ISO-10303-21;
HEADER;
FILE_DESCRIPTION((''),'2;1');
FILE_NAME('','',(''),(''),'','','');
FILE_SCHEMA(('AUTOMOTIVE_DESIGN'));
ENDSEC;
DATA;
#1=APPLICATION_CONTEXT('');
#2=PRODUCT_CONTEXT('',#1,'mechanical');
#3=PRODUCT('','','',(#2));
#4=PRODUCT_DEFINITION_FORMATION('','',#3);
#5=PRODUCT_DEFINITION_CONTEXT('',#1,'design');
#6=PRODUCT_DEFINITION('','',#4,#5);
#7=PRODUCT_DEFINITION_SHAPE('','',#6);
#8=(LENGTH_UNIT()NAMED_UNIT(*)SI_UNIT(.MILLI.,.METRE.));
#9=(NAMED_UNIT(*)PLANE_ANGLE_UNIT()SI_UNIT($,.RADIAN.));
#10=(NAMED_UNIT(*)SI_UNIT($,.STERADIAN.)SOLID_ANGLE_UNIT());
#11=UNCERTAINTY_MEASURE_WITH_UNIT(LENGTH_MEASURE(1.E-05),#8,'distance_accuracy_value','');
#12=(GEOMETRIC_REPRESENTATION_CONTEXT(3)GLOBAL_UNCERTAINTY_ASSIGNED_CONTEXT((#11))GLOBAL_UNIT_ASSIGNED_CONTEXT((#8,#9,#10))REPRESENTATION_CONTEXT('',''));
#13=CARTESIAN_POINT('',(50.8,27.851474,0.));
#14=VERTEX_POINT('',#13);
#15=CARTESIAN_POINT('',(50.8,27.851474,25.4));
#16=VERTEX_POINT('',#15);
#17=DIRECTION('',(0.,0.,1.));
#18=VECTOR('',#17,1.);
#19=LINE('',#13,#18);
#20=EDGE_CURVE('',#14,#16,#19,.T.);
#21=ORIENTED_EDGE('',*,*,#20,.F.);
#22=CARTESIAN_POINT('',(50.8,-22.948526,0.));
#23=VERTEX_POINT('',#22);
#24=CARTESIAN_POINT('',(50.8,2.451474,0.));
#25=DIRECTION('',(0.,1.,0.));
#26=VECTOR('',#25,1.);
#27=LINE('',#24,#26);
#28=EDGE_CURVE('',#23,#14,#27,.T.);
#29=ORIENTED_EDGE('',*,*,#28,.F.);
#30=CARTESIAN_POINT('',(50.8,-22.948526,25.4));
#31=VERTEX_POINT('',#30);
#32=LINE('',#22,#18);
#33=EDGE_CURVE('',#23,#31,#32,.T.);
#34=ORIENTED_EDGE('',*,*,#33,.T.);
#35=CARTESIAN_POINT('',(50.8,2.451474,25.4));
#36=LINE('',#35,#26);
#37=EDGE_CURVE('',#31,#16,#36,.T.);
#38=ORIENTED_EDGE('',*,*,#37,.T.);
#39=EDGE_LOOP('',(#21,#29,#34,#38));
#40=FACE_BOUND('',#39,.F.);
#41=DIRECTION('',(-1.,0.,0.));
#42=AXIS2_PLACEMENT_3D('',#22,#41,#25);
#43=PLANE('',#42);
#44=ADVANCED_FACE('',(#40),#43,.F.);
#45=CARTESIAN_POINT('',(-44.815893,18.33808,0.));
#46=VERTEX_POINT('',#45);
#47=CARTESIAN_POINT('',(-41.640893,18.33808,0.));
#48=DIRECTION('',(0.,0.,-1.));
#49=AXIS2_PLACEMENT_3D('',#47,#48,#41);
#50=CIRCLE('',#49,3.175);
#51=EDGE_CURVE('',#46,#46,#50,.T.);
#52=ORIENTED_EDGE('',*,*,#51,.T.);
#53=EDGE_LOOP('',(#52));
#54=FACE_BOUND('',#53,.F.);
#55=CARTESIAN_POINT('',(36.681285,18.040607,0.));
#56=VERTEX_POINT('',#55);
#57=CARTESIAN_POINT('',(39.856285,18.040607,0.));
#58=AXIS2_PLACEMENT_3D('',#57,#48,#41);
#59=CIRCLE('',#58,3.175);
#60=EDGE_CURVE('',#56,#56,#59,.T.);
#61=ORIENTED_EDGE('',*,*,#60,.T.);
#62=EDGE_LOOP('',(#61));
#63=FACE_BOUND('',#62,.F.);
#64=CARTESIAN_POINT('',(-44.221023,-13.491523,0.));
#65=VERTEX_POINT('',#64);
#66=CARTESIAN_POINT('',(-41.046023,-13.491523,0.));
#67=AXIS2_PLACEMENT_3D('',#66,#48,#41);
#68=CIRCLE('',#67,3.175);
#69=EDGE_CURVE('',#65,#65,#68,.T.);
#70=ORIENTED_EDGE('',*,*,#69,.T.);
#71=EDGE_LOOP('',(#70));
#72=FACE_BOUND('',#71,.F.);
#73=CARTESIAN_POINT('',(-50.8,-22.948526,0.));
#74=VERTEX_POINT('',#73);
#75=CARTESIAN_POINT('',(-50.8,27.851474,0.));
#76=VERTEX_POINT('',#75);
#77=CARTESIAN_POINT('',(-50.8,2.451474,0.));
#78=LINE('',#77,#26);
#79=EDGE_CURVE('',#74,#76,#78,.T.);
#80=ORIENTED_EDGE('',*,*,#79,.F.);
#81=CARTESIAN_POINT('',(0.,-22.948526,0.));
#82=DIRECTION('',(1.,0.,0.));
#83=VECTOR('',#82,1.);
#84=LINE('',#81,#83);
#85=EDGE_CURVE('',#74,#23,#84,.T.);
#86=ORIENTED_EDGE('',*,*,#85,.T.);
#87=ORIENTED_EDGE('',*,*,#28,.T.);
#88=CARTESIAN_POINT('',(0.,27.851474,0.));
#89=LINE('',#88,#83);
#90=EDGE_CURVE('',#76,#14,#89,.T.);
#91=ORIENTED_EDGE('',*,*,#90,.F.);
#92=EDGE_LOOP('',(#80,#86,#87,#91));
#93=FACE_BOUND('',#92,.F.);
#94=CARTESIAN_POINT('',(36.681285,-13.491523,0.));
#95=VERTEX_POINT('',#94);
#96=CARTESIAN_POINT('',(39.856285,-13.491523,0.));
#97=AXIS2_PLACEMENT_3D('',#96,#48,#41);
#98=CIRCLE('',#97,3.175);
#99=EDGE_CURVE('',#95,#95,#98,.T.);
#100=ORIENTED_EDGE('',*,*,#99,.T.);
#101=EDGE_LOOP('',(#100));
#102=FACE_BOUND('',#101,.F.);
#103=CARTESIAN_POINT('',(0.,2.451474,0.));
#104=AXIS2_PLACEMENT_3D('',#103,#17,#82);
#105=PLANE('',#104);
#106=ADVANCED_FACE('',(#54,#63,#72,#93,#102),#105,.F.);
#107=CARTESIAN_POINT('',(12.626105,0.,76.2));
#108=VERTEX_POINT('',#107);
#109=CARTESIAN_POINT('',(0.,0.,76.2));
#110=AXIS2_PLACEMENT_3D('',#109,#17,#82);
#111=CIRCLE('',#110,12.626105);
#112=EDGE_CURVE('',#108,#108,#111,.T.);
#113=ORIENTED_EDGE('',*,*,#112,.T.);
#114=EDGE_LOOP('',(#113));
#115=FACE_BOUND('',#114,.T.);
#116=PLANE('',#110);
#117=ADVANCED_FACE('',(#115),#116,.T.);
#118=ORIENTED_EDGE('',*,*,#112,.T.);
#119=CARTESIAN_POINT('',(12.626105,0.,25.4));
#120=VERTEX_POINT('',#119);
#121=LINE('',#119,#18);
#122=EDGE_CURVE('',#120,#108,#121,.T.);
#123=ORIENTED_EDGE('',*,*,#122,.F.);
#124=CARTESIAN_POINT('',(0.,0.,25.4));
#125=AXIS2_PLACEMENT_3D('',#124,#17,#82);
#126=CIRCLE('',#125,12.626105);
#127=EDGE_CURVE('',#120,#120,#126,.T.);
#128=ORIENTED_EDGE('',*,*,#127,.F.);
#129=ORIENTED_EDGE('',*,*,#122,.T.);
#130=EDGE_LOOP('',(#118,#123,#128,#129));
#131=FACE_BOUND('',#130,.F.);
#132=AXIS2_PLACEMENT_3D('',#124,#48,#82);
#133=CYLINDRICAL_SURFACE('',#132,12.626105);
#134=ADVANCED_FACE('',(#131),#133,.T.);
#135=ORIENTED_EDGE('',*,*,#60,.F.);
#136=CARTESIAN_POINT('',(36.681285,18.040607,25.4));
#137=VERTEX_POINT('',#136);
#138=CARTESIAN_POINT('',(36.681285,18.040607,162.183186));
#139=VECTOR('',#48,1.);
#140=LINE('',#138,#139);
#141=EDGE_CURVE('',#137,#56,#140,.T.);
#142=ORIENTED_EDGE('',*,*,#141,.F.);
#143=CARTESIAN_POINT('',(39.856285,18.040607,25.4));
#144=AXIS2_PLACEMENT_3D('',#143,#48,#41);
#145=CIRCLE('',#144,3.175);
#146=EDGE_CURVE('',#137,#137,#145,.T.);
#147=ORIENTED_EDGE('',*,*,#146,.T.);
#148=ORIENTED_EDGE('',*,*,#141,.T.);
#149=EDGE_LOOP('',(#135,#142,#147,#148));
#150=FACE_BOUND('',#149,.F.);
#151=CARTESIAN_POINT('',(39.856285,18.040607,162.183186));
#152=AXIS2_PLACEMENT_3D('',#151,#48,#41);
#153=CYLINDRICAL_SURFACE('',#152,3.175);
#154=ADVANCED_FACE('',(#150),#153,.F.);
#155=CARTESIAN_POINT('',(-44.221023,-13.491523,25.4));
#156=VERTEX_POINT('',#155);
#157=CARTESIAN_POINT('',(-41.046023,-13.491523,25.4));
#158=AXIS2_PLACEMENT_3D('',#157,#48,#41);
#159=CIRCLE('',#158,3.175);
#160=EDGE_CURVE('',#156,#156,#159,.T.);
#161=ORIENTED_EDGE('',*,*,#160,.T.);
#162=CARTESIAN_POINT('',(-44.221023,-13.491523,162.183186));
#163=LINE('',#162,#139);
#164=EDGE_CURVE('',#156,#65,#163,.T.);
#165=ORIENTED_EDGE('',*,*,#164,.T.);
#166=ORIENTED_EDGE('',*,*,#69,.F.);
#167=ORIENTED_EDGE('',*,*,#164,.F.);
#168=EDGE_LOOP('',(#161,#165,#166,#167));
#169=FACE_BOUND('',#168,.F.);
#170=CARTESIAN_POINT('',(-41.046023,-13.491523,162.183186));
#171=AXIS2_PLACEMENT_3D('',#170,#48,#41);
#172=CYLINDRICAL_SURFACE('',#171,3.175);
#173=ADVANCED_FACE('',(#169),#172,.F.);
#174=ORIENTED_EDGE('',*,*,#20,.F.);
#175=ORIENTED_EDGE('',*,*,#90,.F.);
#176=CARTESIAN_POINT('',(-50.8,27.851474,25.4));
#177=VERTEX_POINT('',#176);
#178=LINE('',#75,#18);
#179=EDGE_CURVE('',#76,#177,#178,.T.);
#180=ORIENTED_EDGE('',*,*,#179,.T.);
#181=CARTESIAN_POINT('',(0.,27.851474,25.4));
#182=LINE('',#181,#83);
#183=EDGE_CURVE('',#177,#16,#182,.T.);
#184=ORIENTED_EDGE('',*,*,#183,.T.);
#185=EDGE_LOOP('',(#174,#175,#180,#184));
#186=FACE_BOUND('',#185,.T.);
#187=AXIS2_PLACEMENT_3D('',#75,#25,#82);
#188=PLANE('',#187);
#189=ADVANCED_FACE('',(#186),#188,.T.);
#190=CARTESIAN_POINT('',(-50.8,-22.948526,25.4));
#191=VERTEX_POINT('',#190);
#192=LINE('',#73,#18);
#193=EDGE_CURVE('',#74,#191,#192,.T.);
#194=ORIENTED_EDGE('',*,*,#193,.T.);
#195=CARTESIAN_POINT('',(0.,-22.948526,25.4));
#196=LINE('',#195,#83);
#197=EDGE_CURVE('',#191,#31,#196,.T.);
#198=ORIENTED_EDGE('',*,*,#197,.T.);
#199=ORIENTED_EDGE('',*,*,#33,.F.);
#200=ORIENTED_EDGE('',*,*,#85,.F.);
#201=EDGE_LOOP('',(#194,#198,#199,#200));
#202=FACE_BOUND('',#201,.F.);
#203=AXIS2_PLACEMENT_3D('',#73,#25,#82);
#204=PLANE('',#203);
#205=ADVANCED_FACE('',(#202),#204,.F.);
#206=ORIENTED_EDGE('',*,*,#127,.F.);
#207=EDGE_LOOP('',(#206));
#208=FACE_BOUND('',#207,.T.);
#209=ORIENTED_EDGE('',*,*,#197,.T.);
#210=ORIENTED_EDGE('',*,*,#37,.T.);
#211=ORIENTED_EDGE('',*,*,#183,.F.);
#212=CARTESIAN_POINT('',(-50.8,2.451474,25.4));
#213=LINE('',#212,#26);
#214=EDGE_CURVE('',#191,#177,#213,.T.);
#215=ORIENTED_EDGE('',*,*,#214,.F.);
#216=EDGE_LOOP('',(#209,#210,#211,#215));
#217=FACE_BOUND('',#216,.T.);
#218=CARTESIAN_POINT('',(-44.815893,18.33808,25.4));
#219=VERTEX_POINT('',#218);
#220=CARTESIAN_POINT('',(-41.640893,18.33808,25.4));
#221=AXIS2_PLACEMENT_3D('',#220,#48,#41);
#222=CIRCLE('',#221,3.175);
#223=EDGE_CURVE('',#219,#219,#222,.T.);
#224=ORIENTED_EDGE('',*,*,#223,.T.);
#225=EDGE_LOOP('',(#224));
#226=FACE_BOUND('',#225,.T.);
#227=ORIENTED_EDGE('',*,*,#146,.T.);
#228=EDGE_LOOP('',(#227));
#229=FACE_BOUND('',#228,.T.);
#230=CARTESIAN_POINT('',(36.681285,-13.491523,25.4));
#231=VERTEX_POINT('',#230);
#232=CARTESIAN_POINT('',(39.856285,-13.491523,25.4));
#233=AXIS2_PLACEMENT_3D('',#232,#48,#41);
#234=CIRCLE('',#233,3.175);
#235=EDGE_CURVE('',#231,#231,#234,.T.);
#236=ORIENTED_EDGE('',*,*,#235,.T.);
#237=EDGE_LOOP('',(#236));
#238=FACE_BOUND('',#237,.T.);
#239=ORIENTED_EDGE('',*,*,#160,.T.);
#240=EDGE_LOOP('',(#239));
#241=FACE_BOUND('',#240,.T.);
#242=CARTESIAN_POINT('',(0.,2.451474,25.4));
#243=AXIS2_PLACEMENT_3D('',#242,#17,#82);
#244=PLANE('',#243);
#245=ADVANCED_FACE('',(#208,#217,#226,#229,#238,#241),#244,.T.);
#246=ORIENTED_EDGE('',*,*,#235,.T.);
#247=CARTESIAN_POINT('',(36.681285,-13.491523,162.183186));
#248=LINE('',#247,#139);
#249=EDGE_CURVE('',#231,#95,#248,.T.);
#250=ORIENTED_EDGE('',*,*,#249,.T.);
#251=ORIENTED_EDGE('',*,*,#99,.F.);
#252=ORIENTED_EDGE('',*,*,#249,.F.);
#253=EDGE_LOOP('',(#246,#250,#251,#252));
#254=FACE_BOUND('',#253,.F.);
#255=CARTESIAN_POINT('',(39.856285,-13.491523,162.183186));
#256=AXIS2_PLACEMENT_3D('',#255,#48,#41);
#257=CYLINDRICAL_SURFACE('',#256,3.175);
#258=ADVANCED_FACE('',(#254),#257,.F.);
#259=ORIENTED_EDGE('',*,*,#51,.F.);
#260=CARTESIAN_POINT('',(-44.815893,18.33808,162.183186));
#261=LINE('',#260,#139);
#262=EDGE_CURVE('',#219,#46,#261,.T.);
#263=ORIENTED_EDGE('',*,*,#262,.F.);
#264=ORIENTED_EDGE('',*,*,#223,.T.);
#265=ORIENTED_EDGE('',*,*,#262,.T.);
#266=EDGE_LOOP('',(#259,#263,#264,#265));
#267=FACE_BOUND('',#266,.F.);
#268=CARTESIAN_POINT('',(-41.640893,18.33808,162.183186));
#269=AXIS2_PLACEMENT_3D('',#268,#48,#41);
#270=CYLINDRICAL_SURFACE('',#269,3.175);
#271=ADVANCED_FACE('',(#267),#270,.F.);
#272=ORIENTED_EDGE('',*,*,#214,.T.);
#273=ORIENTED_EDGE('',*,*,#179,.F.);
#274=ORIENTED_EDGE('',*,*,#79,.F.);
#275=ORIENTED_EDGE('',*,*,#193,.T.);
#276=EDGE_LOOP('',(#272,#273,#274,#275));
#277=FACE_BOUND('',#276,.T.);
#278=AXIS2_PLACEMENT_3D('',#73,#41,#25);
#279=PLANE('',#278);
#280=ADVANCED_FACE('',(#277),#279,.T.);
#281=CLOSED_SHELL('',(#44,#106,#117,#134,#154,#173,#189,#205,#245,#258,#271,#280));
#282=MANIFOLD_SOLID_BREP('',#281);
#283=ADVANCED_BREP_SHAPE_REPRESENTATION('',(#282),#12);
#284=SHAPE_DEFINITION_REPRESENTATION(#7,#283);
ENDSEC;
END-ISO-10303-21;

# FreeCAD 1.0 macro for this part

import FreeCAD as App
import Part
import Sketcher
from FreeCAD import Vector
Q = App.Units.Quantity

doc = App.newDocument("Part")
body = doc.addObject("PartDesign::Body", "Body")

sketch1 = body.newObject("Sketcher::SketchObject", "Sketch")
sketch1.AttachmentSupport = (doc.getObject("XY_Plane"), [""])
sketch1.MapMode = "FlatFace"
sketch1.addGeometry(Part.LineSegment(Vector(-51, 28, 0), Vector(-51, -23, 0)), False)
sketch1.addGeometry(Part.LineSegment(Vector(-51, -23, 0), Vector(51, -23, 0)), False)
sketch1.addGeometry(Part.LineSegment(Vector(51, -23, 0), Vector(51, 28, 0)), False)
sketch1.addGeometry(Part.LineSegment(Vector(51, 28, 0), Vector(-51, 28, 0)), False)
sketch1.addConstraint(Sketcher.Constraint("Coincident", 0, 2, 1, 1))
sketch1.addConstraint(Sketcher.Constraint("Coincident", 1, 2, 2, 1))
sketch1.addConstraint(Sketcher.Constraint("Coincident", 2, 2, 3, 1))
sketch1.addConstraint(Sketcher.Constraint("Coincident", 3, 2, 0, 1))
sketch1.addConstraint(Sketcher.Constraint("Vertical", 0))
sketch1.addConstraint(Sketcher.Constraint("Horizontal", 1))
sketch1.addConstraint(Sketcher.Constraint("Vertical", 2))
sketch1.addConstraint(Sketcher.Constraint("Horizontal", 3))
sketch1.addConstraint(Sketcher.Constraint("DistanceX", 1, 1, 1, 2, Q("4 in")))
sketch1.addConstraint(Sketcher.Constraint("DistanceY", 0, 2, 0, 1, Q("2 in")))
sketch1.addConstraint(Sketcher.Constraint("DistanceX", 0, 2, -1, 1, Q("2 in")))
sketch1.addConstraint(Sketcher.Constraint("DistanceY", 0, 2, -1, 1, Q("22.948526 mm")))
pad1 = body.newObject("PartDesign::Pad", "Pad")
pad1.Profile = sketch1
pad1.Length = Q("1 in")

sketch2 = body.newObject("Sketcher::SketchObject", "Sketch001")
sketch2.AttachmentSupport = (doc.getObject("XY_Plane"), [""])
sketch2.MapMode = "FlatFace"
sketch2.AttachmentOffset = App.Placement(Vector(0, 0, 1 * 25.4), App.Rotation())
sketch2.addGeometry(Part.Circle(Vector(0, 0, 0), Vector(0, 0, 1), 13), False)
sketch2.addConstraint(Sketcher.Constraint("Coincident", 0, 3, -1, 1))
sketch2.addConstraint(Sketcher.Constraint("Diameter", 0, Q("25.25221 mm")))
pad2 = body.newObject("PartDesign::Pad", "Pad001")
pad2.Profile = sketch2
pad2.Length = Q("2 in")

sketch3 = body.newObject("Sketcher::SketchObject", "Sketch002")
sketch3.AttachmentSupport = (doc.getObject("XY_Plane"), [""])
sketch3.MapMode = "FlatFace"
sketch3.AttachmentOffset = App.Placement(Vector(0, 0, 1 * 25.4), App.Rotation())
sketch3.addGeometry(Part.Circle(Vector(-41, -13.5, 0), Vector(0, 0, 1), 3.2), False)
sketch3.addGeometry(Part.Circle(Vector(39.9, -13.5, 0), Vector(0, 0, 1), 3.2), False)
sketch3.addGeometry(Part.Circle(Vector(39.9, 18, 0), Vector(0, 0, 1), 3.2), False)
sketch3.addGeometry(Part.Circle(Vector(-41.6, 18.3, 0), Vector(0, 0, 1), 3.2), False)
sketch3.addConstraint(Sketcher.Constraint("Equal", 0, 1))
sketch3.addConstraint(Sketcher.Constraint("Equal", 1, 2))
sketch3.addConstraint(Sketcher.Constraint("Equal", 2, 3))
sketch3.addConstraint(Sketcher.Constraint("Horizontal", 0, 3, 1, 3))
sketch3.addConstraint(Sketcher.Constraint("Vertical", 1, 3, 2, 3))
sketch3.addConstraint(Sketcher.Constraint("Diameter", 0, Q("0.25 in")))
sketch3.addConstraint(Sketcher.Constraint("DistanceY", -1, 1, 3, 3, Q("18.33808 mm")))
sketch3.addConstraint(Sketcher.Constraint("DistanceX", 0, 3, 1, 3, Q("80.902308 mm")))
sketch3.addConstraint(Sketcher.Constraint("DistanceY", 1, 3, 2, 3, Q("31.53213 mm")))
sketch3.addConstraint(Sketcher.Constraint("DistanceX", 3, 3, 0, 3, Q("0.59487 mm")))
sketch3.addConstraint(Sketcher.Constraint("DistanceX", 0, 3, -1, 1, Q("41.046023 mm")))
sketch3.addConstraint(Sketcher.Constraint("DistanceY", 0, 3, -1, 1, Q("13.491523 mm")))
doc.recompute()
hole = body.newObject("PartDesign::Hole", "Hole")
hole.Profile = sketch3
hole.ThreadType = "None"
hole.Diameter = Q("0.25 in")
hole.DepthType = "ThroughAll"

doc.recompute()
